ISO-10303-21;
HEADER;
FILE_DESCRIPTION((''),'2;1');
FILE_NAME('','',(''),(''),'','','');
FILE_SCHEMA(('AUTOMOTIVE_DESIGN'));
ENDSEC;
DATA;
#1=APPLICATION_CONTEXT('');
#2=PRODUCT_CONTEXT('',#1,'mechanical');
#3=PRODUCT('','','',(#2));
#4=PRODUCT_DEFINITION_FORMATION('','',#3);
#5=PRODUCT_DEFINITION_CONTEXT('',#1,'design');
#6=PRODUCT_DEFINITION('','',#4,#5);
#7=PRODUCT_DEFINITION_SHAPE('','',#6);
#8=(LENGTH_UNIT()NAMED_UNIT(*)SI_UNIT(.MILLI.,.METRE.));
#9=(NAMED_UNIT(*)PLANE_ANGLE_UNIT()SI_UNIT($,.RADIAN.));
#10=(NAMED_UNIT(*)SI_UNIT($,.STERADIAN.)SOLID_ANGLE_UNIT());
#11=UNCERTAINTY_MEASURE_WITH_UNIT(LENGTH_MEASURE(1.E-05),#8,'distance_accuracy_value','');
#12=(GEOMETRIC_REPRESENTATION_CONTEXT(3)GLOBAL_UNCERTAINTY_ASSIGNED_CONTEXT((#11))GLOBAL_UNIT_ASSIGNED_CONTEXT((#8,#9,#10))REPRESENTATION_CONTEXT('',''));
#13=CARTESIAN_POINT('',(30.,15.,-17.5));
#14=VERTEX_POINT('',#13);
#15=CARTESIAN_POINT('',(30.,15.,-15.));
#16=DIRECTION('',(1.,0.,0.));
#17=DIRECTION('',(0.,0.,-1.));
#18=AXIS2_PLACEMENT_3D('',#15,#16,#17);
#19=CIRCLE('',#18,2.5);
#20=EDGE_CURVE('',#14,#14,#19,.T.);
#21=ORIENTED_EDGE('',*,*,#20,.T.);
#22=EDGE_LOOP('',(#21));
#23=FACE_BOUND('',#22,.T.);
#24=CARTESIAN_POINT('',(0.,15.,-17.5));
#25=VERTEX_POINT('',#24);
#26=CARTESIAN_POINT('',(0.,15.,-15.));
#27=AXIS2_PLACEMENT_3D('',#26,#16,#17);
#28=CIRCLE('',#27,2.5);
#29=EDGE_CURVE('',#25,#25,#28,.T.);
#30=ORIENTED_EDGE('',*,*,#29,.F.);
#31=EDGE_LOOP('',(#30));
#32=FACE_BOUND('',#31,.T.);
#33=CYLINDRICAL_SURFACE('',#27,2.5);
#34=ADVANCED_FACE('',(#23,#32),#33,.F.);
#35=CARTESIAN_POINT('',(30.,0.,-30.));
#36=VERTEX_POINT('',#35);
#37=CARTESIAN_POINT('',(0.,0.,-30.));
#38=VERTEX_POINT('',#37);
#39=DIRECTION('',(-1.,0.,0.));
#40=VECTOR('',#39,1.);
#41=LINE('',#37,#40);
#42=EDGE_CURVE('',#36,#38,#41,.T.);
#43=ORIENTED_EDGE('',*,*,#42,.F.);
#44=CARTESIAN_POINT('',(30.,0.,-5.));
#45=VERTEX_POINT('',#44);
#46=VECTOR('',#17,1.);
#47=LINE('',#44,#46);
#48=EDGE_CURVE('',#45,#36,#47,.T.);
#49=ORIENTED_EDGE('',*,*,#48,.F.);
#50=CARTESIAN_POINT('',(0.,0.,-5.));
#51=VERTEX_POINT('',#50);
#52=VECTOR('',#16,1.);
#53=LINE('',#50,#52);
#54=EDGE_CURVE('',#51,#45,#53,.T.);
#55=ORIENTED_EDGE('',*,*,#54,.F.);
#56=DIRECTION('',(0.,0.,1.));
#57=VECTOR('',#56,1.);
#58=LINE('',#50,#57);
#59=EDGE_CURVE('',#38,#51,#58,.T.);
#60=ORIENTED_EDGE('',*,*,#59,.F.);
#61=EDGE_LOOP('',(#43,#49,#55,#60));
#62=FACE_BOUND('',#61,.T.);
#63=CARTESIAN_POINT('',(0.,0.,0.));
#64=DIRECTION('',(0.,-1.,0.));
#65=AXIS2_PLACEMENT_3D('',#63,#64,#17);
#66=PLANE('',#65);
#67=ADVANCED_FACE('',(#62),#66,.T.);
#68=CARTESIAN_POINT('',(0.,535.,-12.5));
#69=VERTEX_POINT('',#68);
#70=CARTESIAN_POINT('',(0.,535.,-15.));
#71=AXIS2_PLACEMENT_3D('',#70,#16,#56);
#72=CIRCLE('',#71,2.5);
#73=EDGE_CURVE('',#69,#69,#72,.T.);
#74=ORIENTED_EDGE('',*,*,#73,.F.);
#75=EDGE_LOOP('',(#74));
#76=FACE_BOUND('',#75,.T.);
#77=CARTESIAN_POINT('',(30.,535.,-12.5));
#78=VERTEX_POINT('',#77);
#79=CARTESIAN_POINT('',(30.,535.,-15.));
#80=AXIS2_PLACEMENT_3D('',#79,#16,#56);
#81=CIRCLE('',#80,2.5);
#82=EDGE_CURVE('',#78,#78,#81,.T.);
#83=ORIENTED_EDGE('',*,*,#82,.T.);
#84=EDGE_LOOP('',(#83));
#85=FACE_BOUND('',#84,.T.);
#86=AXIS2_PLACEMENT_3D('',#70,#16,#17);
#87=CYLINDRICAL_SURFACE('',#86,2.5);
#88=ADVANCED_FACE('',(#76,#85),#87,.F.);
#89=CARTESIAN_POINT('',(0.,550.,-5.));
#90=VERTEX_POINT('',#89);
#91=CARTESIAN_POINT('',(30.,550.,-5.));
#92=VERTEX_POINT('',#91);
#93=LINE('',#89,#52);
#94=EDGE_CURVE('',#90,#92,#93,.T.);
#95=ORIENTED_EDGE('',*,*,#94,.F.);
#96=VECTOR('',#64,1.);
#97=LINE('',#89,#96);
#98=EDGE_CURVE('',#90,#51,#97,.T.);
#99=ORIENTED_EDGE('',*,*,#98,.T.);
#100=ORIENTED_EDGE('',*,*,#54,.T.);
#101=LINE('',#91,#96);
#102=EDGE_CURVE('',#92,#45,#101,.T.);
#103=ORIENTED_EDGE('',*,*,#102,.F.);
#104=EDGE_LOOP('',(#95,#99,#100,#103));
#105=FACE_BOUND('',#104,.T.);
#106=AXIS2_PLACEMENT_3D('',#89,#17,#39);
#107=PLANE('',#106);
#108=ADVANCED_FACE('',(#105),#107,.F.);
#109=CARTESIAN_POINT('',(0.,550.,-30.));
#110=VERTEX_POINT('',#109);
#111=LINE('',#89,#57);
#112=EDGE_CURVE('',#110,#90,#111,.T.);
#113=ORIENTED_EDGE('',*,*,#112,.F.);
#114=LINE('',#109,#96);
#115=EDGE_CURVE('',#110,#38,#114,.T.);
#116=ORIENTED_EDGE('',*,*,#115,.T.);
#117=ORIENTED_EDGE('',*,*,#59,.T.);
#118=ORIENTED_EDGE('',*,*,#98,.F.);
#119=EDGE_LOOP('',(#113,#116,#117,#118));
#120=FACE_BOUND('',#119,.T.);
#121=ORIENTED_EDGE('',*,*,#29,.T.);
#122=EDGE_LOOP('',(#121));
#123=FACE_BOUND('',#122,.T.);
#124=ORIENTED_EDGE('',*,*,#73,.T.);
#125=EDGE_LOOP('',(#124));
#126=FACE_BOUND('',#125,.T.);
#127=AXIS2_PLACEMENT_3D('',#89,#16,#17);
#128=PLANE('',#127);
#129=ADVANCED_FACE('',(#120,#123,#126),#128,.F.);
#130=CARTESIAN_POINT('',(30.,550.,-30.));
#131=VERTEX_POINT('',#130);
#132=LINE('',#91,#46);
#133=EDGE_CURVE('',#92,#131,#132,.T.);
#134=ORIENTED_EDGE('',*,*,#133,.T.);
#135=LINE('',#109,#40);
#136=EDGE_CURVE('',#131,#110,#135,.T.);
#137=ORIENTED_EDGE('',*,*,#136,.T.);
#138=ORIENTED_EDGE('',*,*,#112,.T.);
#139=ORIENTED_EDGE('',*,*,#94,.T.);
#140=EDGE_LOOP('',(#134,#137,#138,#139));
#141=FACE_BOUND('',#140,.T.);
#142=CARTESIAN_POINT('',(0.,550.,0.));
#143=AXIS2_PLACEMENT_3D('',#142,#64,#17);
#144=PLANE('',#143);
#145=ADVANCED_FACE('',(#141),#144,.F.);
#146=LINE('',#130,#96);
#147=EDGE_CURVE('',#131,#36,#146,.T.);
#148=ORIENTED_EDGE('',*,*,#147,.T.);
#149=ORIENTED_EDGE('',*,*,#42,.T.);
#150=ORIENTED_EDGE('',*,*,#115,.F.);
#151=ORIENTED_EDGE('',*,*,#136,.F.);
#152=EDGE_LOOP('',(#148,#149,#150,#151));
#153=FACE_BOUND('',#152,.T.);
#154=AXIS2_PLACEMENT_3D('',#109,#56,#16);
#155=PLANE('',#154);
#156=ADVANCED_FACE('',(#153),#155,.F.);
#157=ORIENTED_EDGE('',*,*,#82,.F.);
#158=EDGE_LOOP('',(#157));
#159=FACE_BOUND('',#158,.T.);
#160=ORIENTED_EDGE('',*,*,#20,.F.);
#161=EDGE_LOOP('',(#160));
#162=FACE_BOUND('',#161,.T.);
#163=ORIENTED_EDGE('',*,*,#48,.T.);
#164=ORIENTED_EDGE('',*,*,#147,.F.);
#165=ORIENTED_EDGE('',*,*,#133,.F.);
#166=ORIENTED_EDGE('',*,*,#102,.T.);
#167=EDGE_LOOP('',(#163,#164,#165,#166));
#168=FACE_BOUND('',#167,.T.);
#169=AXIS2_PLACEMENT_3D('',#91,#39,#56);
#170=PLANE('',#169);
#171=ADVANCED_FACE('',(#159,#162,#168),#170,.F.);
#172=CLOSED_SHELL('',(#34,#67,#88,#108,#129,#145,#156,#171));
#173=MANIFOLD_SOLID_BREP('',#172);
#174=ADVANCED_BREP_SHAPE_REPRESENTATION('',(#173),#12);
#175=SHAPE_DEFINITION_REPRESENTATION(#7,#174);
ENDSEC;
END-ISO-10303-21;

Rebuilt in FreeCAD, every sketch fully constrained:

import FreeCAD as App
import Part
import Sketcher
from FreeCAD import Vector
Q = App.Units.Quantity

doc = App.newDocument("Part")
body = doc.addObject("PartDesign::Body", "Body")

# Sketch on XZ plane
sketch1 = body.newObject("Sketcher::SketchObject", "Sketch")
sketch1.AttachmentSupport = (doc.getObject("XZ_Plane"), [""])
sketch1.MapMode = "FlatFace"
sketch1.addGeometry(Part.LineSegment(Vector(0, -30, 0), Vector(0, -5, 0)), False)
sketch1.addGeometry(Part.LineSegment(Vector(0, -5, 0), Vector(30, -5, 0)), False)
sketch1.addGeometry(Part.LineSegment(Vector(30, -5, 0), Vector(30, -30, 0)), False)
sketch1.addGeometry(Part.LineSegment(Vector(30, -30, 0), Vector(0, -30, 0)), False)
sketch1.addConstraint(Sketcher.Constraint("Coincident", 0, 2, 1, 1))
sketch1.addConstraint(Sketcher.Constraint("Coincident", 1, 2, 2, 1))
sketch1.addConstraint(Sketcher.Constraint("Coincident", 2, 2, 3, 1))
sketch1.addConstraint(Sketcher.Constraint("Coincident", 3, 2, 0, 1))
sketch1.addConstraint(Sketcher.Constraint("Vertical", 0))
sketch1.addConstraint(Sketcher.Constraint("Horizontal", 1))
sketch1.addConstraint(Sketcher.Constraint("Vertical", 2))
sketch1.addConstraint(Sketcher.Constraint("Horizontal", 3))
sketch1.addConstraint(Sketcher.Constraint("PointOnObject", 0, 2, -2))
sketch1.addConstraint(Sketcher.Constraint("DistanceX", 1, 1, 1, 2, Q("30 mm")))
sketch1.addConstraint(Sketcher.Constraint("DistanceY", 0, 1, 0, 2, Q("25 mm")))
sketch1.addConstraint(Sketcher.Constraint("DistanceY", 0, 2, -1, 1, Q("5 mm")))
pad1 = body.newObject("PartDesign::Pad", "Pad")
pad1.Profile = sketch1
pad1.Length = 550
pad1.Reversed = True

# Sketch on YZ plane
sketch2 = body.newObject("Sketcher::SketchObject", "Sketch001")
sketch2.AttachmentSupport = (doc.getObject("YZ_Plane"), [""])
sketch2.MapMode = "FlatFace"
sketch2.AttachmentOffset = App.Placement(Vector(0, 0, 30), App.Rotation())
sketch2.addGeometry(Part.Circle(Vector(15, -15, 0), Vector(0, 0, 1), 2.5), False)
sketch2.addGeometry(Part.Circle(Vector(535, -15, 0), Vector(0, 0, 1), 2.5), False)
sketch2.addConstraint(Sketcher.Constraint("Equal", 0, 1))
sketch2.addConstraint(Sketcher.Constraint("Horizontal", 0, 3, 1, 3))
sketch2.addConstraint(Sketcher.Constraint("Diameter", 0, Q("5 mm")))
sketch2.addConstraint(Sketcher.Constraint("DistanceX", -1, 1, 0, 3, Q("15 mm")))
sketch2.addConstraint(Sketcher.Constraint("DistanceY", 0, 3, -1, 1, Q("15 mm")))
sketch2.addConstraint(Sketcher.Constraint("DistanceX", -1, 1, 1, 3, Q("535 mm")))
pocket1 = body.newObject("PartDesign::Pocket", "Pocket")
pocket1.Profile = sketch2
pocket1.Type = "ThroughAll"

doc.recompute()
